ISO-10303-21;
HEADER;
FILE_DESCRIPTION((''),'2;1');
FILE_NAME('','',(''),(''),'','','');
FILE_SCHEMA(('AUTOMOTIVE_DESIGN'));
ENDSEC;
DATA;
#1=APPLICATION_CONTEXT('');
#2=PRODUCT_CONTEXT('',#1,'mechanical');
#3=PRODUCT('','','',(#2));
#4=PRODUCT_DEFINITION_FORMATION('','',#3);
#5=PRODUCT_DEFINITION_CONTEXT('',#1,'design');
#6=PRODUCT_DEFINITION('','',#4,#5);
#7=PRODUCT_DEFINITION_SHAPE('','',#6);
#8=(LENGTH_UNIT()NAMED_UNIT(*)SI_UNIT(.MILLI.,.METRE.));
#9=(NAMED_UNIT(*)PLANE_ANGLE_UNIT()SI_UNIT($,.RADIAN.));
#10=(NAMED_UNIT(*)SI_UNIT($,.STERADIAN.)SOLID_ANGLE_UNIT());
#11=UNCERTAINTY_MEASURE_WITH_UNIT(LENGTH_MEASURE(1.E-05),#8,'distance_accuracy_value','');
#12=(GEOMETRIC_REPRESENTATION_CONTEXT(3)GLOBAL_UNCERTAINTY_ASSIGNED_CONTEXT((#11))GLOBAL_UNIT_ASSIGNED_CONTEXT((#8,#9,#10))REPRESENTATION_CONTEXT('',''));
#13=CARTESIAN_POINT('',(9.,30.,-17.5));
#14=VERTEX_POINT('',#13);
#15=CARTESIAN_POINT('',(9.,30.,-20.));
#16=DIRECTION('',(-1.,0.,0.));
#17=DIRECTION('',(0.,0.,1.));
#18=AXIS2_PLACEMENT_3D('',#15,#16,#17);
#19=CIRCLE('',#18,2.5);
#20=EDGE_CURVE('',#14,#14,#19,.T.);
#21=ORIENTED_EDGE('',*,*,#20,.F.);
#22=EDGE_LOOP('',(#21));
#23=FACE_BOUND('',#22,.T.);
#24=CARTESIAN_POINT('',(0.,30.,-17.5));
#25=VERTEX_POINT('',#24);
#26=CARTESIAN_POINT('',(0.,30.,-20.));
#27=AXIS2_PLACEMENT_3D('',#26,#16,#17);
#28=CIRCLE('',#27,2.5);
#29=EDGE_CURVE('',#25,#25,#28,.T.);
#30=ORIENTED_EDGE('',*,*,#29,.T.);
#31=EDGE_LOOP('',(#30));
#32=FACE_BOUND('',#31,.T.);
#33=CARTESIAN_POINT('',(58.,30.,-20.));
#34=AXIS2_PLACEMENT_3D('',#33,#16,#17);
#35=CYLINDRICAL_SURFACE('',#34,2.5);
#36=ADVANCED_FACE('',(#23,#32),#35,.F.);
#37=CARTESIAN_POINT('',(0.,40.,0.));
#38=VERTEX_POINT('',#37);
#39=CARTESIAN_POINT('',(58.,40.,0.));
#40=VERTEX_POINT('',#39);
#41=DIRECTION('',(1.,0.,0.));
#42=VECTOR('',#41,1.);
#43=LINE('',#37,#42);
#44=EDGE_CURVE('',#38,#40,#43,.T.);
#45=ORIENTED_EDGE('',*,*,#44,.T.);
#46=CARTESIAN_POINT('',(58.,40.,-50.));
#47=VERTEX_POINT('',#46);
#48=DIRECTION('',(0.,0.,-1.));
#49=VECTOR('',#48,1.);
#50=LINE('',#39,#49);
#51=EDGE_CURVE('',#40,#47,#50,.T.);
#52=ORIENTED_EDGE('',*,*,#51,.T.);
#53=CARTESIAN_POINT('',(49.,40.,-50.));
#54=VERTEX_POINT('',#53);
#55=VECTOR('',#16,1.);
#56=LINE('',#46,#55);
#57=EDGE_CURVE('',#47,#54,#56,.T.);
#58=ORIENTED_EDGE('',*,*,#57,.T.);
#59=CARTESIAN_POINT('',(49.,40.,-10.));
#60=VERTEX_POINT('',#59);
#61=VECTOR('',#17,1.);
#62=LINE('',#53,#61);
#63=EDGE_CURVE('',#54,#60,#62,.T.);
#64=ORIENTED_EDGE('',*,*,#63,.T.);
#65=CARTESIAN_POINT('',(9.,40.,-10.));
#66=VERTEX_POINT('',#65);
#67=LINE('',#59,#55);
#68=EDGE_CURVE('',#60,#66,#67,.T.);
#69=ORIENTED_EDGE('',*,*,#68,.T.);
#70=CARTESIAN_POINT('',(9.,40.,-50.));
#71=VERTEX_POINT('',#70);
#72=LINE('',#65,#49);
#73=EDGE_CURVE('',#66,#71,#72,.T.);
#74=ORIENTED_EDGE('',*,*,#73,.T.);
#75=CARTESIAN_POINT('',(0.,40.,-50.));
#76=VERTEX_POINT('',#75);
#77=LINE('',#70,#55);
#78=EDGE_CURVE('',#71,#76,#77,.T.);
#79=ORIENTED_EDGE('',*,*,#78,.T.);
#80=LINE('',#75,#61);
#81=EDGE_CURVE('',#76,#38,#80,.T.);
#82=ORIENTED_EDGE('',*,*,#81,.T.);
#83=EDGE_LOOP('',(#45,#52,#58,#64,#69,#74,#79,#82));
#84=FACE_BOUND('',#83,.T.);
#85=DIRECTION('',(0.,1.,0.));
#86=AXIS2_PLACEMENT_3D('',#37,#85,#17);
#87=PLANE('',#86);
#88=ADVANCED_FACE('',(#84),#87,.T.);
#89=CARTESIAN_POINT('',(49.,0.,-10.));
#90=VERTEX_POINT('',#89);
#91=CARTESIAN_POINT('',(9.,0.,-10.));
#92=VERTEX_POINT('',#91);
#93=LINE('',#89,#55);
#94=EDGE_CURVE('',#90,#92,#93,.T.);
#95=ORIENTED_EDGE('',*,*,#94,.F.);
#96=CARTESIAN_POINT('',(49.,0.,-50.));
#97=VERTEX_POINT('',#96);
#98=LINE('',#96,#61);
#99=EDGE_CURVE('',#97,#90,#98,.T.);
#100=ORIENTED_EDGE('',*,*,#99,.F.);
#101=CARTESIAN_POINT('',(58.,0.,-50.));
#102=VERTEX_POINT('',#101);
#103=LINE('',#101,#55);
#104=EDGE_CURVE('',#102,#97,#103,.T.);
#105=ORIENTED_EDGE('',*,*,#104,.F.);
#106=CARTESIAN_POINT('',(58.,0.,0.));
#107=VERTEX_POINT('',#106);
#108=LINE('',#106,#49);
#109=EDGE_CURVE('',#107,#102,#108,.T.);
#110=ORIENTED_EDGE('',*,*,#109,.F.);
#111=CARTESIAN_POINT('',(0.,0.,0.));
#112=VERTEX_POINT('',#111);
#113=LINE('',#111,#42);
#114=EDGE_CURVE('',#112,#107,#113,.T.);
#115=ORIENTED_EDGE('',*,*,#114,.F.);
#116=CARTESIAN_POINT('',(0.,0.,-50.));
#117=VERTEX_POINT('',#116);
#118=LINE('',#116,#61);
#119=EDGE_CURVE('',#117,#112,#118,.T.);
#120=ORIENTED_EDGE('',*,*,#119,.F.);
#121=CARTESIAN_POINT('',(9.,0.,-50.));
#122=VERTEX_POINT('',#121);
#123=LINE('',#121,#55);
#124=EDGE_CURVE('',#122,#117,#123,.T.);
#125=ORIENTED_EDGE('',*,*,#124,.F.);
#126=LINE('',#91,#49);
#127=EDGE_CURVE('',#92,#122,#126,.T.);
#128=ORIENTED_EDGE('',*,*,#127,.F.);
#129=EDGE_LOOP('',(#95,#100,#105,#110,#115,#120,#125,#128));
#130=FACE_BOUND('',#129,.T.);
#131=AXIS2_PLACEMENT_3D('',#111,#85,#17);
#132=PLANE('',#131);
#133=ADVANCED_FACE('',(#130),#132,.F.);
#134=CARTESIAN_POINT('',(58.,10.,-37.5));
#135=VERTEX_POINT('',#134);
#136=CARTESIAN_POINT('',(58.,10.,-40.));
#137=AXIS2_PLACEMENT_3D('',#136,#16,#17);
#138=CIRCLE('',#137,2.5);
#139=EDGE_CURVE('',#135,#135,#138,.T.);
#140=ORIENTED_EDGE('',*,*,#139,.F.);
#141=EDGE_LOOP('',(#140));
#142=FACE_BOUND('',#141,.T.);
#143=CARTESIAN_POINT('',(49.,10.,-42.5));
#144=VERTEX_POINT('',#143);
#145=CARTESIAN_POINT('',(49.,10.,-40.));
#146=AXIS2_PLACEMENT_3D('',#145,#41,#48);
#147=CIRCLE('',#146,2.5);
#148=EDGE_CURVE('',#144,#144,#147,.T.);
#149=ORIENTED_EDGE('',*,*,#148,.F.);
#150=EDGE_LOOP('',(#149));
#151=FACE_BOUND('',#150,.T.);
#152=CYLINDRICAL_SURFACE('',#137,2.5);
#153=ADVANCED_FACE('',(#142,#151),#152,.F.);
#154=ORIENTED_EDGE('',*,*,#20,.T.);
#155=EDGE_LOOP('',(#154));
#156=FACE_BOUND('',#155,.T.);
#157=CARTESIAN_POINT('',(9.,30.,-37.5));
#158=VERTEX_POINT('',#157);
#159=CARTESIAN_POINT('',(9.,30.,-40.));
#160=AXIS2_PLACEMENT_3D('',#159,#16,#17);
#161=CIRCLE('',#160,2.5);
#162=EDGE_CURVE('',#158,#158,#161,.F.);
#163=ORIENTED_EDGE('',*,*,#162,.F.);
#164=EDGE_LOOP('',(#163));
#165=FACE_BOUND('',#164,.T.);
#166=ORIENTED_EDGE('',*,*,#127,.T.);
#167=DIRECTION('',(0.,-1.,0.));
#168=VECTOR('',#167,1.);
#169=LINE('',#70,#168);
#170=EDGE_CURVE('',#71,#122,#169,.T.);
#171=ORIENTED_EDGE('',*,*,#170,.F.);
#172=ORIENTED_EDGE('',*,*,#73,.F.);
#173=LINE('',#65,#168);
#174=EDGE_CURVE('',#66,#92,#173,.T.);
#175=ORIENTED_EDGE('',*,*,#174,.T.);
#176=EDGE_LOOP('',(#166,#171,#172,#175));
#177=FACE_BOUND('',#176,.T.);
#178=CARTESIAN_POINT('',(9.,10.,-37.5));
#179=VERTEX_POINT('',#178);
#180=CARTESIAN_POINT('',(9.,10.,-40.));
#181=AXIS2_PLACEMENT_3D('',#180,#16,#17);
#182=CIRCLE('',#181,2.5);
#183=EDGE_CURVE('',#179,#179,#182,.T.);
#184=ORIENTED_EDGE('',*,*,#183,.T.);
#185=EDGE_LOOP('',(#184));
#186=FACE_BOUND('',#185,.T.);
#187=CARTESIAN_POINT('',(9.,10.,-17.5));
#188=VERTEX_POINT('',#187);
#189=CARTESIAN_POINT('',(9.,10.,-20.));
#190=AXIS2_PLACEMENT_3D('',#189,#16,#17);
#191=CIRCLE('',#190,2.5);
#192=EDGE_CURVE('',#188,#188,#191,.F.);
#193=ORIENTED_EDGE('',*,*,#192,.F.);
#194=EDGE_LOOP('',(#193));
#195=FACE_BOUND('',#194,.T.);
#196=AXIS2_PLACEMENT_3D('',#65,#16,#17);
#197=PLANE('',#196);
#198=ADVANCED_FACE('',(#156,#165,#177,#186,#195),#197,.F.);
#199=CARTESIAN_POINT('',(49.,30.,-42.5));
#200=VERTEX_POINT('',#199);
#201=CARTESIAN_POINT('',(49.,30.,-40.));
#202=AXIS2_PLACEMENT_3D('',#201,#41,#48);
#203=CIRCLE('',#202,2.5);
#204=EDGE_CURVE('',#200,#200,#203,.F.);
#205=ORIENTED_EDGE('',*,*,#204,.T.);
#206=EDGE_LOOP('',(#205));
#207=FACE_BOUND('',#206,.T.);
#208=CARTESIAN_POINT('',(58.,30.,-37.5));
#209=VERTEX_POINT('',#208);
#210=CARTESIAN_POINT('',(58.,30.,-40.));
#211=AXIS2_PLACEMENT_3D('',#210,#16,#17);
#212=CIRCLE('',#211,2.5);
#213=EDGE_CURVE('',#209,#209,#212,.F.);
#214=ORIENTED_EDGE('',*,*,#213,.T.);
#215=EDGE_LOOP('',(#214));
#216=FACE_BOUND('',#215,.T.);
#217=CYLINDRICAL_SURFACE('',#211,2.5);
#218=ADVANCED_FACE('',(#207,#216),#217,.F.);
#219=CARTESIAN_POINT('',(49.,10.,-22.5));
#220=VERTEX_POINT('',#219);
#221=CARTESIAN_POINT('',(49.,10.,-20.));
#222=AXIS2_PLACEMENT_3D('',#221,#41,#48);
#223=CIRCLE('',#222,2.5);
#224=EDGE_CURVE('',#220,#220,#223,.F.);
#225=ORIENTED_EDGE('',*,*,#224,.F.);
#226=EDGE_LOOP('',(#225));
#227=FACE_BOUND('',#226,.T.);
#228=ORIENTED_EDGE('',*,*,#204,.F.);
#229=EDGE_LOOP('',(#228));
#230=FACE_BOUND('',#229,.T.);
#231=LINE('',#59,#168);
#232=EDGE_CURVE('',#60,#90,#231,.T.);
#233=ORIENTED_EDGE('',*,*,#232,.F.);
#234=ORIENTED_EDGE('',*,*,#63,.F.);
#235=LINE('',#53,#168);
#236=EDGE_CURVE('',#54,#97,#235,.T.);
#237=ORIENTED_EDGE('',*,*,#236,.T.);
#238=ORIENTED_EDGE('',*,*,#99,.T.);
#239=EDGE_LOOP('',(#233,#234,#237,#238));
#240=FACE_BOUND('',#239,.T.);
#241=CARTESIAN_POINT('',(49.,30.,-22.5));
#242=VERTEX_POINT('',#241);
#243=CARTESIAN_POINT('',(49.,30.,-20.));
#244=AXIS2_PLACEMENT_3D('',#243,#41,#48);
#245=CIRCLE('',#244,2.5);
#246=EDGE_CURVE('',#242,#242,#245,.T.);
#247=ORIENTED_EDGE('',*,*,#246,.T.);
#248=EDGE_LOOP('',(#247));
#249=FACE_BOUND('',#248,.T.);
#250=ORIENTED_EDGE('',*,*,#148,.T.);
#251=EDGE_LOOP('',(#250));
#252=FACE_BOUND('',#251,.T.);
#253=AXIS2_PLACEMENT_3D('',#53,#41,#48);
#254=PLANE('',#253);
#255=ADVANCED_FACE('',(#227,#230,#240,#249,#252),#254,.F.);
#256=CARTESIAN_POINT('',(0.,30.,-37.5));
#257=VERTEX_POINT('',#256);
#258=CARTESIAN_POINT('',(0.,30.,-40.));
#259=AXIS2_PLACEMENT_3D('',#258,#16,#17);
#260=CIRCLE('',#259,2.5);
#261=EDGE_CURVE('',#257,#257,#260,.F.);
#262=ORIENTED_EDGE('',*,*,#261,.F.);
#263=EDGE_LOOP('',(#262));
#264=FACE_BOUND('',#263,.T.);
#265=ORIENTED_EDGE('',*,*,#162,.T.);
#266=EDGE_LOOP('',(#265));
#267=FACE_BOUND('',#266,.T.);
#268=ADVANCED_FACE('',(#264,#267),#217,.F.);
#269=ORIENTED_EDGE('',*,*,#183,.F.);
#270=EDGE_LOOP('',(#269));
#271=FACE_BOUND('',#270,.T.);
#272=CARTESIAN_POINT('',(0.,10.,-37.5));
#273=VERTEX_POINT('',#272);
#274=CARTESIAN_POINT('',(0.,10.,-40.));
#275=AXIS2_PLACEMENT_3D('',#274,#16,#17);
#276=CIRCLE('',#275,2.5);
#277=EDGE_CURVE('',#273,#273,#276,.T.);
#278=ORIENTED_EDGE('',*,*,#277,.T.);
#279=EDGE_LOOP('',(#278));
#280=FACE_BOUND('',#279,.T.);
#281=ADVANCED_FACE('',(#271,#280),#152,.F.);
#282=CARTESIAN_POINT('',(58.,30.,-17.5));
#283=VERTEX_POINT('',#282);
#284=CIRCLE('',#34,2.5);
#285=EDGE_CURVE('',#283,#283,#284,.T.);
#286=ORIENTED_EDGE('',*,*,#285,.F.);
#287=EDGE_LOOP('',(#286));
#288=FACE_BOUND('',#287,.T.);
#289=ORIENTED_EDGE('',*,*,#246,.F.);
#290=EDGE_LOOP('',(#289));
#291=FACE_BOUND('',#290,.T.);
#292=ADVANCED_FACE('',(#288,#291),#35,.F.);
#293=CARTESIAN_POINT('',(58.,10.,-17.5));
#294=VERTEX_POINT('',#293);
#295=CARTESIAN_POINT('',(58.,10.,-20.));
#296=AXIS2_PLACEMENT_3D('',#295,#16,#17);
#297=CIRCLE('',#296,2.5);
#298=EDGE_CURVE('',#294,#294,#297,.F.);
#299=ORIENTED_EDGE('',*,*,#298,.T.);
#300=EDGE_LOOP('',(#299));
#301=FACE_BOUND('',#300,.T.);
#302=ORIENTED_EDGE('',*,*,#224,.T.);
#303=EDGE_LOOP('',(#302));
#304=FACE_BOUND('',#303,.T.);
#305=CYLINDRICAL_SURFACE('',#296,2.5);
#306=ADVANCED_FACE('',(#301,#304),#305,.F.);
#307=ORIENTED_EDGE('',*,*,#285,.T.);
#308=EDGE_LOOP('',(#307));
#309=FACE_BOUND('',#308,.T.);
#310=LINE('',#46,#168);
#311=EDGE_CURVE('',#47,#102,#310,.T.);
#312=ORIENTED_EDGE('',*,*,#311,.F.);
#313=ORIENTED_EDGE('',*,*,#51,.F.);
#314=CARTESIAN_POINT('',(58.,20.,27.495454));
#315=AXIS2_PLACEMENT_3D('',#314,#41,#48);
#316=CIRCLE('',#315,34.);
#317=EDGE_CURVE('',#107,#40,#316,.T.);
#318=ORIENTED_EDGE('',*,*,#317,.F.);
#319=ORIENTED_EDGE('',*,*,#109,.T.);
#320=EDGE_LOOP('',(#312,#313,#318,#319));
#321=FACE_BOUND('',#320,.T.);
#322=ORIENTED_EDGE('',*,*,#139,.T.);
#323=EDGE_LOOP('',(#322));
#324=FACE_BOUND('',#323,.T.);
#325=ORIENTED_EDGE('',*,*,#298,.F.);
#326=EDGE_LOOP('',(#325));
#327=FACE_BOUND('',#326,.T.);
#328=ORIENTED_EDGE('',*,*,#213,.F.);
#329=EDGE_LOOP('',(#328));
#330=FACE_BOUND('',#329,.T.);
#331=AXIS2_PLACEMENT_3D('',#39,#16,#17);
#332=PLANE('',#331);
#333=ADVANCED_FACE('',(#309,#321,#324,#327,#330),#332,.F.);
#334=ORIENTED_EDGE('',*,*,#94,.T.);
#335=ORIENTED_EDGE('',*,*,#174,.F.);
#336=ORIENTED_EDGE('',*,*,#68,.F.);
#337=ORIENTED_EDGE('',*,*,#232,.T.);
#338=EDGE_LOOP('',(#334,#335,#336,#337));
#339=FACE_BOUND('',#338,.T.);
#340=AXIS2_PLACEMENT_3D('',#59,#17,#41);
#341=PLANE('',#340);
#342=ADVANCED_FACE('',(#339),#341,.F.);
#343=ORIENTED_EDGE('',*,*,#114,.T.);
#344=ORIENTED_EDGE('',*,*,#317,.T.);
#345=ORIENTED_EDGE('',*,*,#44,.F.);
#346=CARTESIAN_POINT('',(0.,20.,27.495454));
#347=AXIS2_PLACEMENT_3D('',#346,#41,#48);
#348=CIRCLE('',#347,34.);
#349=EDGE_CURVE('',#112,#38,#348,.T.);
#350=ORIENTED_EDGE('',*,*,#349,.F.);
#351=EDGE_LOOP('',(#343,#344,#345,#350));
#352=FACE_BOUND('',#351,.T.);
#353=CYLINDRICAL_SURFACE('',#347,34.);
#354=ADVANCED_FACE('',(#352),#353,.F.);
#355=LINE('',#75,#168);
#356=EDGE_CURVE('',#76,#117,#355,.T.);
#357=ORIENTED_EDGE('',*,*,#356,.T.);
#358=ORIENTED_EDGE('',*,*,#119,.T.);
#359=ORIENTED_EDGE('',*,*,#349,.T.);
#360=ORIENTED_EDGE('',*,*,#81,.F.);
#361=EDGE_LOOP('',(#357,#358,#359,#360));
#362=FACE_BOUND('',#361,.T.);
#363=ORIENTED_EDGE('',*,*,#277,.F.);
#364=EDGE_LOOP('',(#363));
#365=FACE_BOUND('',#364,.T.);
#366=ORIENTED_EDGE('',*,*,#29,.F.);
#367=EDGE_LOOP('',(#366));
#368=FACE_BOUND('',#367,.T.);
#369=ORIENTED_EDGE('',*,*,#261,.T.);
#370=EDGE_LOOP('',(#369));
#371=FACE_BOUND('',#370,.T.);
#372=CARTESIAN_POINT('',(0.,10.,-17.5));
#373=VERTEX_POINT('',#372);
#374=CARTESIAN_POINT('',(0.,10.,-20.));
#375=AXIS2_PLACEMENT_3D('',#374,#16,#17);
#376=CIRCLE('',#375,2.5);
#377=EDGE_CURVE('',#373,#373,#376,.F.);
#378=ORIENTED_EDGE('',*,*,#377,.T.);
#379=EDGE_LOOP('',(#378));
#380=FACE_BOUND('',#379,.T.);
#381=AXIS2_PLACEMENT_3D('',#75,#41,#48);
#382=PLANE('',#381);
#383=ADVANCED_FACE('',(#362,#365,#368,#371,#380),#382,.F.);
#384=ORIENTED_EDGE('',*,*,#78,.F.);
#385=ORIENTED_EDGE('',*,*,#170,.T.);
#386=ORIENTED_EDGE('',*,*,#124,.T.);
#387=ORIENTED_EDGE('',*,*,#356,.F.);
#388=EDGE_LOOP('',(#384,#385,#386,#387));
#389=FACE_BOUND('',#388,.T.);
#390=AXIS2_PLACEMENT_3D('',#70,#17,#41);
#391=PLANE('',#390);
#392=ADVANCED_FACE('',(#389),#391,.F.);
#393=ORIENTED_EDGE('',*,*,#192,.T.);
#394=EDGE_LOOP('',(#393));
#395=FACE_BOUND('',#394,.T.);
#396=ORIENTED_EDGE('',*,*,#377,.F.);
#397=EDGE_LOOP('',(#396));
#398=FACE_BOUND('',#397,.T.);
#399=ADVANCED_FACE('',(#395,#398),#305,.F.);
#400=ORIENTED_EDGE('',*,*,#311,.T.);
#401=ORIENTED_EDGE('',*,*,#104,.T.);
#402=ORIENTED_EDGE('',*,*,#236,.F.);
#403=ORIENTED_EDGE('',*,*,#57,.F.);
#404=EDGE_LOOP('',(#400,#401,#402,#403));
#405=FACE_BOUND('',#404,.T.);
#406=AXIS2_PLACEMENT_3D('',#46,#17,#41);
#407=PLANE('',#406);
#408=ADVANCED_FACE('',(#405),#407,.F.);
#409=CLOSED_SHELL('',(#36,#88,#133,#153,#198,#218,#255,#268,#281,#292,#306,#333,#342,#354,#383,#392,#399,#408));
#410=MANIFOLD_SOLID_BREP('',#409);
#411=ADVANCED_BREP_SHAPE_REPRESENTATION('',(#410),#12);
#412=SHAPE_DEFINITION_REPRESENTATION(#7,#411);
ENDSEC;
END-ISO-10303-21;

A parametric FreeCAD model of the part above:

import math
import FreeCAD as App
import Part
import Sketcher
from FreeCAD import Vector

doc = App.newDocument("Part")
body = doc.addObject("PartDesign::Body", "Body")

# Sketch on XZ plane
sketch1 = body.newObject("Sketcher::SketchObject", "Sketch")
sketch1.AttachmentSupport = (doc.getObject("XZ_Plane"), [""])
sketch1.MapMode = "FlatFace"
sketch1.addGeometry(Part.LineSegment(Vector(0, 0, 0), Vector(58, 0, 0)), False)
sketch1.addGeometry(Part.LineSegment(Vector(58, 0, 0), Vector(58, -50, 0)), False)
sketch1.addGeometry(Part.LineSegment(Vector(58, -50, 0), Vector(49, -50, 0)), False)
sketch1.addGeometry(Part.LineSegment(Vector(49, -50, 0), Vector(49, -10, 0)), False)
sketch1.addGeometry(Part.LineSegment(Vector(49, -10, 0), Vector(9, -10, 0)), False)
sketch1.addGeometry(Part.LineSegment(Vector(9, -10, 0), Vector(9, -50, 0)), False)
sketch1.addGeometry(Part.LineSegment(Vector(9, -50, 0), Vector(0, -50, 0)), False)
sketch1.addGeometry(Part.LineSegment(Vector(0, -50, 0), Vector(0, 0, 0)), False)
sketch1.addConstraint(Sketcher.Constraint("Coincident", 0, 2, 1, 1))
sketch1.addConstraint(Sketcher.Constraint("Coincident", 1, 2, 2, 1))
sketch1.addConstraint(Sketcher.Constraint("Coincident", 2, 2, 3, 1))
sketch1.addConstraint(Sketcher.Constraint("Coincident", 3, 2, 4, 1))
sketch1.addConstraint(Sketcher.Constraint("Coincident", 4, 2, 5, 1))
sketch1.addConstraint(Sketcher.Constraint("Coincident", 5, 2, 6, 1))
sketch1.addConstraint(Sketcher.Constraint("Coincident", 6, 2, 7, 1))
sketch1.addConstraint(Sketcher.Constraint("Coincident", 7, 2, 0, 1))
sketch1.addConstraint(Sketcher.Constraint("Horizontal", 0))
sketch1.addConstraint(Sketcher.Constraint("Vertical", 1))
sketch1.addConstraint(Sketcher.Constraint("Horizontal", 2))
sketch1.addConstraint(Sketcher.Constraint("Vertical", 3))
sketch1.addConstraint(Sketcher.Constraint("Horizontal", 4))
sketch1.addConstraint(Sketcher.Constraint("Vertical", 5))
sketch1.addConstraint(Sketcher.Constraint("Horizontal", 6))
sketch1.addConstraint(Sketcher.Constraint("Vertical", 7))
sketch1.addConstraint(Sketcher.Constraint("Coincident", 7, 2, -1, 1))
sketch1.addConstraint(Sketcher.Constraint("Horizontal", 2, 2, 5, 2))
sketch1.addConstraint(Sketcher.Constraint("Equal", 2, 6))
sketch1.addConstraint(Sketcher.Constraint("Equal", 4, 3))
sketch1.addConstraint(Sketcher.Constraint("DistanceX", 0, 1, 0, 2, 58.0))
sketch1.addConstraint(Sketcher.Constraint("DistanceX", 2, 2, 2, 1, 9.0))
sketch1.addConstraint(Sketcher.Constraint("DistanceY", 1, 2, 1, 1, 50.0))
pad1 = body.newObject("PartDesign::Pad", "Pad")
pad1.Profile = sketch1
pad1.Length = 40
pad1.Reversed = True

# Sketch on YZ plane
sketch2 = body.newObject("Sketcher::SketchObject", "Sketch001")
sketch2.AttachmentSupport = (doc.getObject("YZ_Plane"), [""])
sketch2.MapMode = "FlatFace"
sketch2.AttachmentOffset = App.Placement(Vector(0, 0, 49), App.Rotation())
sketch2.addGeometry(Part.ArcOfCircle(Part.Circle(Vector(10, -40, 0), Vector(0, 0, 1), 2.5), math.radians(180), math.radians(270)), False)
sketch2.addGeometry(Part.ArcOfCircle(Part.Circle(Vector(10, -40, 0), Vector(0, 0, 1), 2.5), math.radians(90), math.radians(180)), False)
sketch2.addGeometry(Part.ArcOfCircle(Part.Circle(Vector(10, -40, 0), Vector(0, 0, 1), 2.5), math.radians(-90), math.radians(90)), False)
sketch2.addGeometry(Part.Circle(Vector(10, -20, 0), Vector(0, 0, 1), 2.5), False)
sketch2.addGeometry(Part.Circle(Vector(30, -40, 0), Vector(0, 0, 1), 2.5), False)
sketch2.addGeometry(Part.Circle(Vector(30, -20, 0), Vector(0, 0, 1), 2.5), False)
sketch2.addConstraint(Sketcher.Constraint("Tangent", 0, 1, 1, 2))
sketch2.addConstraint(Sketcher.Constraint("Tangent", 1, 1, 2, 2))
sketch2.addConstraint(Sketcher.Constraint("Tangent", 2, 1, 0, 2))
sketch2.addConstraint(Sketcher.Constraint("Equal", 2, 3))
sketch2.addConstraint(Sketcher.Constraint("Equal", 3, 4))
sketch2.addConstraint(Sketcher.Constraint("Equal", 4, 5))
sketch2.addConstraint(Sketcher.Constraint("Horizontal", 2, 3, 4, 3))
sketch2.addConstraint(Sketcher.Constraint("Horizontal", 3, 3, 5, 3))
sketch2.addConstraint(Sketcher.Constraint("Horizontal", 4, 3, 0, 1))
sketch2.addConstraint(Sketcher.Constraint("Vertical", 2, 3, 3, 3))
sketch2.addConstraint(Sketcher.Constraint("Vertical", 4, 3, 5, 3))
sketch2.addConstraint(Sketcher.Constraint("Vertical", 3, 3, 1, 1))
sketch2.addConstraint(Sketcher.Constraint("Vertical", 1, 1, 2, 1))
sketch2.addConstraint(Sketcher.Constraint("Diameter", 3, 5.0))
sketch2.addConstraint(Sketcher.Constraint("DistanceX", -1, 1, 0, 3, 10.0))
sketch2.addConstraint(Sketcher.Constraint("DistanceY", 0, 3, -1, 1, 40.0))
sketch2.addConstraint(Sketcher.Constraint("DistanceY", 3, 3, -1, 1, 20.0))
sketch2.addConstraint(Sketcher.Constraint("DistanceX", -1, 1, 4, 3, 30.0))
pocket1 = body.newObject("PartDesign::Pocket", "Pocket")
pocket1.Profile = sketch2
pocket1.Type = "ThroughAll"
pocket1.Midplane = True

# Sketch on YZ plane
sketch3 = body.newObject("Sketcher::SketchObject", "Sketch002")
sketch3.AttachmentSupport = (doc.getObject("YZ_Plane"), [""])
sketch3.MapMode = "FlatFace"
sketch3.AttachmentOffset = App.Placement(Vector(0, 0, 58), App.Rotation())
sketch3.addGeometry(Part.LineSegment(Vector(40, 0, 0), Vector(0, 0, 0)), False)
sketch3.addGeometry(Part.ArcOfCircle(Part.Circle(Vector(20, 27, 0), Vector(0, 0, 1), 34), math.radians(-126), math.radians(-54)), False)
sketch3.addConstraint(Sketcher.Constraint("Coincident", 0, 1, 1, 2))
sketch3.addConstraint(Sketcher.Constraint("Coincident", 1, 1, 0, 2))
sketch3.addConstraint(Sketcher.Constraint("Horizontal", 0))
sketch3.addConstraint(Sketcher.Constraint("Coincident", 1, 1, -1, 1))
sketch3.addConstraint(Sketcher.Constraint("Radius", 1, 34.0))
sketch3.addConstraint(Sketcher.Constraint("DistanceX", 0, 2, 0, 1, 40.0))
pocket2 = body.newObject("PartDesign::Pocket", "Pocket001")
pocket2.Profile = sketch3
pocket2.Type = "ThroughAll"

doc.recompute()
